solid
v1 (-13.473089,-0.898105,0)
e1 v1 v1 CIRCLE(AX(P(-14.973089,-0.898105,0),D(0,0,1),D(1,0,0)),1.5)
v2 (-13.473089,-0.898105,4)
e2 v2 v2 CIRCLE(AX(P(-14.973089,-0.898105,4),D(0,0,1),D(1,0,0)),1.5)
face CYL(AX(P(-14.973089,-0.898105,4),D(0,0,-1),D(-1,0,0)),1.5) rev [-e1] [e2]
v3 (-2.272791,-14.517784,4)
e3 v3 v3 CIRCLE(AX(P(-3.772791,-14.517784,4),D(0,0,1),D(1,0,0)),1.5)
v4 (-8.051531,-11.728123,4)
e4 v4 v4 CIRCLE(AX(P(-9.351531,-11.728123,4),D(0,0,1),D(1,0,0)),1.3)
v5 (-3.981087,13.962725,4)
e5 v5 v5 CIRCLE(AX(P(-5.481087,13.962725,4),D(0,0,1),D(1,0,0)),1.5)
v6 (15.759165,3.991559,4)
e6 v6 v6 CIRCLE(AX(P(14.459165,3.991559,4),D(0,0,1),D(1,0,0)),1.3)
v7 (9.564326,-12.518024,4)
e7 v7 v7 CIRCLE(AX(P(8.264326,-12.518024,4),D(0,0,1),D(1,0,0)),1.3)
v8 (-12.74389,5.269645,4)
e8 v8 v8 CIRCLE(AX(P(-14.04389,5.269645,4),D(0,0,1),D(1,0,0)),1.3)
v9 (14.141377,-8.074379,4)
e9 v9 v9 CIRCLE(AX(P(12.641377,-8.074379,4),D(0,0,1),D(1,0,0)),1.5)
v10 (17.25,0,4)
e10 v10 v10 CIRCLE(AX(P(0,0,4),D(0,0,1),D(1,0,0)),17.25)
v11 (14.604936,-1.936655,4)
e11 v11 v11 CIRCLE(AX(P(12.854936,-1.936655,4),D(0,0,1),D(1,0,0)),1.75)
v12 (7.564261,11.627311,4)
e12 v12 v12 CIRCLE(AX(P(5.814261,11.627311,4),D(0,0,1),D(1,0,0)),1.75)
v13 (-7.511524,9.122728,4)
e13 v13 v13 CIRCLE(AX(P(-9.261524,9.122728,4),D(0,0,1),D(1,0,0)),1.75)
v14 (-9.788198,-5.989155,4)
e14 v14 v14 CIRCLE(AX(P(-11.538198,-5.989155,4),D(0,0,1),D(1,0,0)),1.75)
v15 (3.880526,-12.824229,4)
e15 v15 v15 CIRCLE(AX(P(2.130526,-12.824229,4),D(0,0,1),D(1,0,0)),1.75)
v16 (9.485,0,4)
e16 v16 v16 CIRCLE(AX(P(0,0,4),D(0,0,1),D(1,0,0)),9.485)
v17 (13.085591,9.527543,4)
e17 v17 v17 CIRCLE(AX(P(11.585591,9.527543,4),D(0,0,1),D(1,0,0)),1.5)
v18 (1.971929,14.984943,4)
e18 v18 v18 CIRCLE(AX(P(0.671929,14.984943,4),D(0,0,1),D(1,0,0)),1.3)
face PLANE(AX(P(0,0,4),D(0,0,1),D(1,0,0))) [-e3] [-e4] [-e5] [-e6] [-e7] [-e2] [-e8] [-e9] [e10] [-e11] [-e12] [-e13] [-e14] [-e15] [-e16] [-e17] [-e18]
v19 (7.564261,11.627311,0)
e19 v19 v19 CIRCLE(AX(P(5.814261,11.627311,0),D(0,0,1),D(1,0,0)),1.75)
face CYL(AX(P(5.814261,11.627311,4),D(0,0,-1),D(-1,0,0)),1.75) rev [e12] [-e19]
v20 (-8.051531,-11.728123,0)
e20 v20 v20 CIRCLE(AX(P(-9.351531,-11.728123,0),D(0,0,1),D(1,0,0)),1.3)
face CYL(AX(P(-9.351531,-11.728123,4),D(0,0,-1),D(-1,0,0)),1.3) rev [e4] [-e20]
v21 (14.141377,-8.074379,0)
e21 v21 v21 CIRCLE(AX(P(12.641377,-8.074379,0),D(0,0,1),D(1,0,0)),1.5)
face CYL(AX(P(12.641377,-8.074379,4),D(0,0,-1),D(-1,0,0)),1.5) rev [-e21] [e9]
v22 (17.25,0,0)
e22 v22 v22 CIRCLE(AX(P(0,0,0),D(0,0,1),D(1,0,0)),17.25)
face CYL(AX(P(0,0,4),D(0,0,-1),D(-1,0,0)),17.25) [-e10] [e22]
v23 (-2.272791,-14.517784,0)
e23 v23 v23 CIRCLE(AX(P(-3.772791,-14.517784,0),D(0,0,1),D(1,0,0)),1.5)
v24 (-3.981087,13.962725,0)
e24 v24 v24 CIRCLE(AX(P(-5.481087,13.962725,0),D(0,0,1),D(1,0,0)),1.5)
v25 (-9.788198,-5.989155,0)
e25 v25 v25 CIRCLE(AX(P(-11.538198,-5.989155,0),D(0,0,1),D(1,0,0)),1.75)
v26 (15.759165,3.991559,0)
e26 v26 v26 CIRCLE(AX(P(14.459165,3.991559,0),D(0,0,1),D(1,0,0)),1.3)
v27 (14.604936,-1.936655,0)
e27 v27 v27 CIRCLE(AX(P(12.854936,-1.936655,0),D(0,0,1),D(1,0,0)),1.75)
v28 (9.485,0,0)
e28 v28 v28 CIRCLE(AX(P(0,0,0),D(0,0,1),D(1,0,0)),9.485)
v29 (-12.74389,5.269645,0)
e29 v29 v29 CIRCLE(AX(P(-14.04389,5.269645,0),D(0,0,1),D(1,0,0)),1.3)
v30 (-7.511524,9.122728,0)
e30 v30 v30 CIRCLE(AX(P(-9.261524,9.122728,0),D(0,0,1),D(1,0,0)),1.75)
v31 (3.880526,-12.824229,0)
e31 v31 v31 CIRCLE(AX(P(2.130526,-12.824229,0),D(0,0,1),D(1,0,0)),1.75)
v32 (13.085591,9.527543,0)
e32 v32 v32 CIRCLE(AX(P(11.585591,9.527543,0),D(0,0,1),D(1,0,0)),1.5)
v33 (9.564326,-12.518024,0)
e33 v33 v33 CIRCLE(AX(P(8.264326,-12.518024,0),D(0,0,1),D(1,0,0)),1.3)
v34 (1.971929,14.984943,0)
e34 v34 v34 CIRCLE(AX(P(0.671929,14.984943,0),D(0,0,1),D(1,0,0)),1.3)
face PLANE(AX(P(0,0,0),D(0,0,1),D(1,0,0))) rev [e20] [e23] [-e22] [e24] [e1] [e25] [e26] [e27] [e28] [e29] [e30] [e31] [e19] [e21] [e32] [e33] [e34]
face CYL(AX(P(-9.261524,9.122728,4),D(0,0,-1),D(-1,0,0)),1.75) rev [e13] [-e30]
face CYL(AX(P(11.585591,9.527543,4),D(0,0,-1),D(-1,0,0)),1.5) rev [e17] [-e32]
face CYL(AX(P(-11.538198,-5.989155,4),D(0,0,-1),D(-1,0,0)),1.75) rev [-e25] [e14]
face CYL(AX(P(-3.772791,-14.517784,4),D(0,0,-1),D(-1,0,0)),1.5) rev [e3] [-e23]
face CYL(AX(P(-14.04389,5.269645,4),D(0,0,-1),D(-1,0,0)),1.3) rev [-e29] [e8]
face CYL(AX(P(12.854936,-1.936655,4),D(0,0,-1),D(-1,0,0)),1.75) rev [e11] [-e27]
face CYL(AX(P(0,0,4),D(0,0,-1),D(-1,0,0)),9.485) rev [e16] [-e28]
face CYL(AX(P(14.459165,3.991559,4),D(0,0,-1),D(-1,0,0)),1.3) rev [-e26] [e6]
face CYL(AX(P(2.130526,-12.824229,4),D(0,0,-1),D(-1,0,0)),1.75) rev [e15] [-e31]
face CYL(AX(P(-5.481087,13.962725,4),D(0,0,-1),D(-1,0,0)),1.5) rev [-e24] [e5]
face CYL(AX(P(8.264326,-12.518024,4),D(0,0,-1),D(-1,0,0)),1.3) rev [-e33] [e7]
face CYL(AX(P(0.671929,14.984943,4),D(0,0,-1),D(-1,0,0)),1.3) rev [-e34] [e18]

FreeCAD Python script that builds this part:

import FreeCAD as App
import Part
import Sketcher

V = App.Vector
Q = App.Units.Quantity

doc = App.newDocument("Part")
body = doc.addObject("PartDesign::Body", "Body")

# Sketch on XY plane
sketch1 = body.newObject("Sketcher::SketchObject", "Sketch")
sketch1.AttachmentSupport = (doc.getObject("XY_Plane"), [""])
sketch1.MapMode = "FlatFace"
sketch1.addGeometry([
    Part.Circle(V(0, 0, 0), V(0, 0, 1), 17.2),  # 0
    Part.Circle(V(-9.4, -11.7, 0), V(0, 0, 1), 1.3),  # 1
    Part.Circle(V(-3.8, -14.5, 0), V(0, 0, 1), 1.5),  # 2
    Part.Circle(V(-11.5, -6, 0), V(0, 0, 1), 1.8),  # 3
    Part.Circle(V(-15, -0.9, 0), V(0, 0, 1), 1.5),  # 4
    Part.Circle(V(2.1, -12.8, 0), V(0, 0, 1), 1.8),  # 5
    Part.Circle(V(8.3, -12.5, 0), V(0, 0, 1), 1.3),  # 6
    Part.Circle(V(12.6, -8.1, 0), V(0, 0, 1), 1.5),  # 7
    Part.Circle(V(0, 0, 0), V(0, 0, 1), 9.5),  # 8
    Part.Circle(V(12.9, -1.9, 0), V(0, 0, 1), 1.8),  # 9
    Part.Circle(V(-14, 5.3, 0), V(0, 0, 1), 1.3),  # 10
    Part.Circle(V(-9.3, 9.1, 0), V(0, 0, 1), 1.8),  # 11
    Part.Circle(V(-5.5, 14, 0), V(0, 0, 1), 1.5),  # 12
    Part.Circle(V(14.5, 4, 0), V(0, 0, 1), 1.3),  # 13
    Part.Circle(V(5.8, 11.6, 0), V(0, 0, 1), 1.8),  # 14
    Part.Circle(V(0.7, 15, 0), V(0, 0, 1), 1.3),  # 15
    Part.Circle(V(11.6, 9.5, 0), V(0, 0, 1), 1.5),  # 16
], False)
sketch1.addConstraint([
    Sketcher.Constraint("Coincident", 0, 3, -1, 1),
    Sketcher.Constraint("Coincident", 8, 3, -1, 1),
    Sketcher.Constraint("Equal", 2, 4),
    Sketcher.Constraint("Equal", 3, 5),
    Sketcher.Constraint("Equal", 1, 6),
    Sketcher.Constraint("Equal", 4, 7),
    Sketcher.Constraint("Equal", 5, 9),
    Sketcher.Constraint("Equal", 6, 10),
    Sketcher.Constraint("Equal", 9, 11),
    Sketcher.Constraint("Equal", 7, 12),
    Sketcher.Constraint("Equal", 10, 13),
    Sketcher.Constraint("Equal", 11, 14),
    Sketcher.Constraint("Equal", 13, 15),
    Sketcher.Constraint("Equal", 12, 16),
    Sketcher.Constraint("Diameter", 2, Q("3 mm")),
    Sketcher.Constraint("Diameter", 0, Q("34.5 mm")),
    Sketcher.Constraint("Diameter", 1, Q("2.6 mm")),
    Sketcher.Constraint("Diameter", 3, Q("3.5 mm")),
    Sketcher.Constraint("Diameter", 8, Q("18.97 mm")),
    Sketcher.Constraint("DistanceX", 3, 3, -1, 1, Q("11.538198 mm")),
    Sketcher.Constraint("DistanceX", 4, 3, 2, 3, Q("11.200299 mm")),
    Sketcher.Constraint("DistanceX", 5, 3, 6, 3, Q("6.133801 mm")),
    Sketcher.Constraint("DistanceY", 6, 3, 1, 3, Q("0.7899 mm")),
    Sketcher.Constraint("DistanceX", 4, 3, 10, 3, Q("0.9292 mm")),
    Sketcher.Constraint("DistanceY", 3, 3, 10, 3, Q("11.2588 mm")),
    Sketcher.Constraint("DistanceY", 16, 3, 15, 3, Q("5.4574 mm")),
    Sketcher.Constraint("DistanceX", 1, 3, -1, 1, Q("9.351531 mm")),
    Sketcher.Constraint("DistanceX", 2, 3, -1, 1, Q("3.772791 mm")),
    Sketcher.Constraint("DistanceY", 5, 3, -1, 1, Q("12.824229 mm")),
    Sketcher.Constraint("DistanceY", 7, 3, -1, 1, Q("8.074379 mm")),
    Sketcher.Constraint("DistanceY", -1, 1, 11, 3, Q("9.122728 mm")),
    Sketcher.Constraint("DistanceY", -1, 1, 13, 3, Q("3.991559 mm")),
    Sketcher.Constraint("DistanceX", -1, 1, 14, 3, Q("5.814261 mm")),
    Sketcher.Constraint("DistanceY", -1, 1, 14, 3, Q("11.627311 mm")),
    Sketcher.Constraint("DistanceX", -1, 1, 15, 3, Q("0.671929 mm")),
    Sketcher.Constraint("DistanceX", -1, 1, 16, 3, Q("11.585591 mm")),
    Sketcher.Constraint("DistanceY", 2, 3, 1, 3, Q("2.789661 mm")),
    Sketcher.Constraint("DistanceY", 1, 3, 3, 3, Q("5.738968 mm")),
    Sketcher.Constraint("DistanceY", 3, 3, 4, 3, Q("5.09105 mm")),
    Sketcher.Constraint("DistanceX", 6, 3, 7, 3, Q("4.37705 mm")),
    Sketcher.Constraint("DistanceX", 7, 3, 9, 3, Q("0.213559 mm")),
    Sketcher.Constraint("DistanceY", 6, 3, 9, 3, Q("10.581369 mm")),
    Sketcher.Constraint("DistanceY", 10, 3, 12, 3, Q("8.69308 mm")),
    Sketcher.Constraint("DistanceX", 9, 3, 13, 3, Q("1.604229 mm")),
    Sketcher.Constraint("DistanceX", 12, 3, 14, 3, Q("11.295349 mm")),
    Sketcher.Constraint("DistanceY", 14, 3, 15, 3, Q("3.357632 mm")),
    Sketcher.Constraint("DistanceY", 12, 3, 15, 3, Q("1.022218 mm")),
    Sketcher.Constraint("DistanceX", -1, 1, 5, 3, Q("2.130526 mm")),
    Sketcher.Constraint("DistanceX", 11, 3, -1, 1, Q("9.261524 mm")),
])
pad1 = body.newObject("PartDesign::Pad", "Pad")
pad1.Profile = sketch1
pad1.Length = 4

doc.recompute()
